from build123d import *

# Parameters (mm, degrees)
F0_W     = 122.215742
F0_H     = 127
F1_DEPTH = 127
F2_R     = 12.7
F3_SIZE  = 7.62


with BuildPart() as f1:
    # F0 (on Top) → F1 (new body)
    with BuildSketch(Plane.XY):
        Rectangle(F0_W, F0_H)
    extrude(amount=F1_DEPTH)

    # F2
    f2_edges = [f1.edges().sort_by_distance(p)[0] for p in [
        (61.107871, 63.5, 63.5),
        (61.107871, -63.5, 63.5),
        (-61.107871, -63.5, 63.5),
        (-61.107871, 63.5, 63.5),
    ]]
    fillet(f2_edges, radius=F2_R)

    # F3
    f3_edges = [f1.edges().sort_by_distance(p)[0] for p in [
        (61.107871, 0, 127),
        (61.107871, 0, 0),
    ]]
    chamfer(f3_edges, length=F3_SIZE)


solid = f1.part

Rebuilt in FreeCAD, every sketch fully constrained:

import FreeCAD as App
import Part
import Sketcher
from FreeCAD import Vector
Q = App.Units.Quantity


def edges_at(feature, points):
    """Names of the edges that pass closest to the given points."""
    edges = feature.Shape.Edges
    near = lambda p: min(range(len(edges)), key=lambda i: edges[i].distToShape(Part.Vertex(*p))[0])
    return sorted({f"Edge{near(p) + 1}" for p in points})

doc = App.newDocument("Part")
body = doc.addObject("PartDesign::Body", "Body")

sketch1 = body.newObject("Sketcher::SketchObject", "Sketch")
sketch1.AttachmentSupport = (doc.getObject("XY_Plane"), [""])
sketch1.MapMode = "FlatFace"
sketch1.addGeometry([
    Part.LineSegment(Vector(-61, 64, 0), Vector(-61, -64, 0)),
    Part.LineSegment(Vector(-61, -64, 0), Vector(61, -64, 0)),
    Part.LineSegment(Vector(61, -64, 0), Vector(61, 64, 0)),
    Part.LineSegment(Vector(61, 64, 0), Vector(-61, 64, 0)),
], False)
sketch1.addConstraint([
    Sketcher.Constraint("Coincident", 0, 2, 1, 1),
    Sketcher.Constraint("Coincident", 1, 2, 2, 1),
    Sketcher.Constraint("Coincident", 2, 2, 3, 1),
    Sketcher.Constraint("Coincident", 3, 2, 0, 1),
    Sketcher.Constraint("Vertical", 0),
    Sketcher.Constraint("Horizontal", 1),
    Sketcher.Constraint("Vertical", 2),
    Sketcher.Constraint("Horizontal", 3),
    Sketcher.Constraint("Symmetric", 0, 2, 2, 2, -1, 1),
    Sketcher.Constraint("DistanceY", 0, 2, 0, 1, Q("5 in")),
    Sketcher.Constraint("DistanceX", 1, 1, 1, 2, Q("122.215742 mm")),
])
pad1 = body.newObject("PartDesign::Pad", "Pad")
pad1.Profile = sketch1
pad1.Length = Q("5 in")
doc.recompute()

fillet = body.newObject("PartDesign::Fillet", "Fillet")
fillet.Base = (pad1, edges_at(pad1, [
    (61.108, 63.5, 63.5),
    (61.108, -63.5, 63.5),
    (-61.108, -63.5, 63.5),
    (-61.108, 63.5, 63.5),
]))
fillet.Radius = Q("0.5 in")
doc.recompute()

chamfer = body.newObject("PartDesign::Chamfer", "Chamfer")
chamfer.Base = (fillet, edges_at(fillet, [(61.108, 0, 127), (61.108, 0, 0)]))
chamfer.Size = Q("0.3 in")

doc.recompute()
